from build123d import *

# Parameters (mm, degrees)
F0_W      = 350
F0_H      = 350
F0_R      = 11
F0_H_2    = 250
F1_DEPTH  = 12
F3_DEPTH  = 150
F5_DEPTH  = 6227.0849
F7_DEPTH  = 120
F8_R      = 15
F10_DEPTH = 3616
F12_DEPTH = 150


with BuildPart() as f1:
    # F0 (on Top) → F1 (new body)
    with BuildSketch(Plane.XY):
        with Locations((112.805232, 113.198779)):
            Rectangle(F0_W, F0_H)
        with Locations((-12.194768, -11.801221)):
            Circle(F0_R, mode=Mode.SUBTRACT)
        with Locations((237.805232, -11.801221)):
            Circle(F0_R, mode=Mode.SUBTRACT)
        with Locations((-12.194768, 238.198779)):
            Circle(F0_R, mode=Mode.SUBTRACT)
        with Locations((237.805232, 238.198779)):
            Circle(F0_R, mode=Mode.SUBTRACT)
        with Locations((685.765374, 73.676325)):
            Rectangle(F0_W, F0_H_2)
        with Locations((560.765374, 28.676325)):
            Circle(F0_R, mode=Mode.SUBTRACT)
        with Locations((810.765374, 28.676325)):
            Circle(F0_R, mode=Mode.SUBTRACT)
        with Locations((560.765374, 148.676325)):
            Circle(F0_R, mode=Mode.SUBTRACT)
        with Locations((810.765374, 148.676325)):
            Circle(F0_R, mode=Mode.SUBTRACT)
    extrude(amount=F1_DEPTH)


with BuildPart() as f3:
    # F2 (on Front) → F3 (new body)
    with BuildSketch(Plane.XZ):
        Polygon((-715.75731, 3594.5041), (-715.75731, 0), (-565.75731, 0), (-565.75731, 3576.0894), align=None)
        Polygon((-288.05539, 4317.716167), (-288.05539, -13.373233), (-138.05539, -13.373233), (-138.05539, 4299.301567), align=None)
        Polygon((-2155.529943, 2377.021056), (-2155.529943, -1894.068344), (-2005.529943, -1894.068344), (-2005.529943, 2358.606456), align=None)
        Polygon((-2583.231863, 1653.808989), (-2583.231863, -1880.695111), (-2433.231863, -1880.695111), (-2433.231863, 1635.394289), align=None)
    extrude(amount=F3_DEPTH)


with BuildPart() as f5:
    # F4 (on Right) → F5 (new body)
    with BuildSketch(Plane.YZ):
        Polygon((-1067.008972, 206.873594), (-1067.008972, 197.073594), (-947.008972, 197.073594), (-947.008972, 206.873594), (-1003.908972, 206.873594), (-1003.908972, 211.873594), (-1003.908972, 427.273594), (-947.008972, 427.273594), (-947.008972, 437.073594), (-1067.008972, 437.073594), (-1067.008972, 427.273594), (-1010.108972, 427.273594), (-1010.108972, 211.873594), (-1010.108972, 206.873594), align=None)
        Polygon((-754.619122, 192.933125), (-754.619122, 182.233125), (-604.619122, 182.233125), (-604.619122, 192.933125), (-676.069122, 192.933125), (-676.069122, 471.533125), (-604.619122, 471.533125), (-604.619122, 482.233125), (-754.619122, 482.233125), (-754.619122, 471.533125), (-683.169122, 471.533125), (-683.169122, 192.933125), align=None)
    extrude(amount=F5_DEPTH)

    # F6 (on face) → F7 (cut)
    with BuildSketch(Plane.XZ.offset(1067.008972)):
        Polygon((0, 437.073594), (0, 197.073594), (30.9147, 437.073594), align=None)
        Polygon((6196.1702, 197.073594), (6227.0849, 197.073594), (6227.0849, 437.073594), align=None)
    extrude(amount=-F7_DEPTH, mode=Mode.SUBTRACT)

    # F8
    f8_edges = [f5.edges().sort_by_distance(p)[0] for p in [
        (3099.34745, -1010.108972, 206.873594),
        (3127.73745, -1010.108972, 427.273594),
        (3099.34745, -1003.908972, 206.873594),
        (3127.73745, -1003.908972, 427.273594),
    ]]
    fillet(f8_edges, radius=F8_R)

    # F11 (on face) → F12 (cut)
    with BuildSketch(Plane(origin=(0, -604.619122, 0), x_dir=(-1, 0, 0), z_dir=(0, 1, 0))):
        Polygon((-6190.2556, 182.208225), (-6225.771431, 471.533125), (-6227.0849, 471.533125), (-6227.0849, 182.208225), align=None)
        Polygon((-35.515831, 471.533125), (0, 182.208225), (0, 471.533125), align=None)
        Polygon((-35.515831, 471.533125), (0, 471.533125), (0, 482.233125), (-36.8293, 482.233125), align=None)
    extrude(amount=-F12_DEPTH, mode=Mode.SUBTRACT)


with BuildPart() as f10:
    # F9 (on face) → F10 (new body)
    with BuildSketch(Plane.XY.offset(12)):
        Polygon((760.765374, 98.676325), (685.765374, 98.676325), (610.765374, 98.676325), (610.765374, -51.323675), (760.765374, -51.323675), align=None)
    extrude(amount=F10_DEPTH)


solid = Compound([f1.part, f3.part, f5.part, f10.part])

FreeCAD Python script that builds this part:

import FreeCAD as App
import Part
import Sketcher

V = App.Vector


def edges_at(feature, points):
    """Names of the edges that pass closest to the given points."""
    edges = feature.Shape.Edges
    near = lambda p: min(range(len(edges)), key=lambda i: edges[i].distToShape(Part.Vertex(*p))[0])
    return sorted({f"Edge{near(p) + 1}" for p in points})

doc = App.newDocument("Part")
params = doc.addObject("Spreadsheet::Sheet", "Params")
for row, (alias, value) in enumerate([
    ("sketch1_diameter", "22 mm"),
    ("sketch1_width", "350 mm"),
    ("sketch1_height", "250 mm"),
    ("pad1_length", "12 mm"),
    ("sketch2_width", "150 mm"),
    ("pad2_length", "150 mm"),
    ("sketch3_width", "120 mm"),
    ("sketch3_width2", "150 mm"),
    ("sketch3_width3", "56.9 mm"),
    ("sketch3_height", "9.8 mm"),
    ("sketch3_height2", "220.4 mm"),
    ("pad3_length", "6227.0849 mm"),
    ("sketch4_height", "240 mm"),
    ("pocket1_length", "120 mm"),
    ("fillet_radius", "15 mm"),
    ("pocket2_length", "150 mm"),
    ("sketch6_width", "150 mm"),
    ("pad4_length", "3616 mm"),
], start=1):
    params.set(f"A{row}", alias)
    params.set(f"B{row}", "=" + value)
    params.setAlias(f"B{row}", alias)

body = doc.addObject("PartDesign::Body", "Body")
body.AllowCompound = True

# Sketch on XY plane
sketch1 = body.newObject("Sketcher::SketchObject", "Sketch")
sketch1.AttachmentSupport = (doc.getObject("XY_Plane"), [""])
sketch1.MapMode = "FlatFace"
sketch1.addGeometry([
    Part.LineSegment(V(-62, 288, 0), V(-62, -62, 0)),  # 0
    Part.LineSegment(V(-62, -62, 0), V(288, -62, 0)),  # 1
    Part.LineSegment(V(288, -62, 0), V(288, 288, 0)),  # 2
    Part.LineSegment(V(288, 288, 0), V(-62, 288, 0)),  # 3
    Part.Circle(V(-12, -12, 0), V(0, 0, 1), 11),  # 4
    Part.Circle(V(238, -12, 0), V(0, 0, 1), 11),  # 5
    Part.Circle(V(-12, 238, 0), V(0, 0, 1), 11),  # 6
    Part.Circle(V(238, 238, 0), V(0, 0, 1), 11),  # 7
    Part.LineSegment(V(511, 199, 0), V(511, -51, 0)),  # 8
    Part.LineSegment(V(511, -51, 0), V(861, -51, 0)),  # 9
    Part.LineSegment(V(861, -51, 0), V(861, 199, 0)),  # 10
    Part.LineSegment(V(861, 199, 0), V(511, 199, 0)),  # 11
    Part.Circle(V(561, 29, 0), V(0, 0, 1), 11),  # 12
    Part.Circle(V(811, 29, 0), V(0, 0, 1), 11),  # 13
    Part.Circle(V(561, 149, 0), V(0, 0, 1), 11),  # 14
    Part.Circle(V(811, 149, 0), V(0, 0, 1), 11),  # 15
], False)
sketch1.addConstraint([
    Sketcher.Constraint("Coincident", 0, 2, 1, 1),
    Sketcher.Constraint("Coincident", 1, 2, 2, 1),
    Sketcher.Constraint("Coincident", 2, 2, 3, 1),
    Sketcher.Constraint("Coincident", 3, 2, 0, 1),
    Sketcher.Constraint("Coincident", 8, 2, 9, 1),
    Sketcher.Constraint("Coincident", 9, 2, 10, 1),
    Sketcher.Constraint("Coincident", 10, 2, 11, 1),
    Sketcher.Constraint("Coincident", 11, 2, 8, 1),
    Sketcher.Constraint("Vertical", 0),
    Sketcher.Constraint("Horizontal", 1),
    Sketcher.Constraint("Vertical", 2),
    Sketcher.Constraint("Horizontal", 3),
    Sketcher.Constraint("Vertical", 8),
    Sketcher.Constraint("Horizontal", 9),
    Sketcher.Constraint("Vertical", 10),
    Sketcher.Constraint("Horizontal", 11),
    Sketcher.Constraint("Equal", 4, 5),
    Sketcher.Constraint("Equal", 5, 6),
    Sketcher.Constraint("Equal", 6, 7),
    Sketcher.Constraint("Equal", 7, 12),
    Sketcher.Constraint("Equal", 12, 13),
    Sketcher.Constraint("Equal", 13, 14),
    Sketcher.Constraint("Equal", 14, 15),
    Sketcher.Constraint("Horizontal", 4, 3, 5, 3),
    Sketcher.Constraint("Horizontal", 6, 3, 7, 3),
    Sketcher.Constraint("Horizontal", 12, 3, 13, 3),
    Sketcher.Constraint("Horizontal", 14, 3, 15, 3),
    Sketcher.Constraint("Vertical", 4, 3, 6, 3),
    Sketcher.Constraint("Vertical", 5, 3, 7, 3),
    Sketcher.Constraint("Vertical", 12, 3, 14, 3),
    Sketcher.Constraint("Vertical", 13, 3, 15, 3),
    Sketcher.Constraint("Equal", 3, 9),
    Sketcher.Constraint("Equal", 11, 0),
    Sketcher.Constraint("Diameter", 4, 22.0),
    Sketcher.Constraint("DistanceX", 1, 1, 1, 2, 350.0),
    Sketcher.Constraint("DistanceY", 8, 2, 8, 1, 250.0),
    Sketcher.Constraint("DistanceX", 4, 3, 5, 3, 250.0),
    Sketcher.Constraint("DistanceY", 4, 3, 6, 3, 250.0),
    Sketcher.Constraint("DistanceX", 12, 3, 13, 3, 250.0),
    Sketcher.Constraint("DistanceY", 12, 3, 14, 3, 120.0),
    Sketcher.Constraint("DistanceX", 0, 2, 4, 3, 50.0),
    Sketcher.Constraint("DistanceY", 0, 2, 4, 3, 50.0),
    Sketcher.Constraint("DistanceX", 8, 2, 12, 3, 50.0),
    Sketcher.Constraint("DistanceY", 8, 2, 12, 3, 80.0),
    Sketcher.Constraint("DistanceY", 4, 3, -1, 1, 11.801221),
    Sketcher.Constraint("DistanceX", -1, 1, 5, 3, 237.805232),
    Sketcher.Constraint("DistanceX", 5, 3, 12, 3, 322.960142),
    Sketcher.Constraint("DistanceY", -1, 1, 12, 3, 28.676325),
])
sketch1.setExpression("Constraints[33]", "Params.sketch1_diameter")
sketch1.setExpression("Constraints[34]", "Params.sketch1_width")
sketch1.setExpression("Constraints[35]", "Params.sketch1_height")
pad1 = body.newObject("PartDesign::Pad", "Pad")
pad1.Profile = sketch1
pad1.setExpression("Length", "Params.pad1_length")
body2 = doc.addObject("PartDesign::Body", "Body001")
body2.AllowCompound = True

# Sketch on XZ plane
sketch2 = body2.newObject("Sketcher::SketchObject", "Sketch001")
sketch2.AttachmentSupport = (doc.getObject("XZ_Plane001"), [""])
sketch2.MapMode = "FlatFace"
sketch2.addGeometry([
    Part.LineSegment(V(-715.75731, 3594.5041, 0), V(-715.75731, 0, 0)),  # 0
    Part.LineSegment(V(-715.75731, 0, 0), V(-565.75731, 0, 0)),  # 1
    Part.LineSegment(V(-565.75731, 0, 0), V(-565.75731, 3576.0894, 0)),  # 2
    Part.LineSegment(V(-565.75731, 3576.0894, 0), V(-715.75731, 3594.5041, 0)),  # 3
    Part.LineSegment(V(-288.05539, 4317.716167, 0), V(-288.05539, -13.373233, 0)),  # 4
    Part.LineSegment(V(-288.05539, -13.373233, 0), V(-138.05539, -13.373233, 0)),  # 5
    Part.LineSegment(V(-138.05539, -13.373233, 0), V(-138.05539, 4299.301567, 0)),  # 6
    Part.LineSegment(V(-138.05539, 4299.301567, 0), V(-288.05539, 4317.716167, 0)),  # 7
    Part.LineSegment(V(-2155.529943, 2377.021056, 0), V(-2155.529943, -1894.068344, 0)),  # 8
    Part.LineSegment(V(-2155.529943, -1894.068344, 0), V(-2005.529943, -1894.068344, 0)),  # 9
    Part.LineSegment(V(-2005.529943, -1894.068344, 0), V(-2005.529943, 2358.606456, 0)),  # 10
    Part.LineSegment(V(-2005.529943, 2358.606456, 0), V(-2155.529943, 2377.021056, 0)),  # 11
    Part.LineSegment(V(-2583.231863, 1653.808989, 0), V(-2583.231863, -1880.695111, 0)),  # 12
    Part.LineSegment(V(-2583.231863, -1880.695111, 0), V(-2433.231863, -1880.695111, 0)),  # 13
    Part.LineSegment(V(-2433.231863, -1880.695111, 0), V(-2433.231863, 1635.394289, 0)),  # 14
    Part.LineSegment(V(-2433.231863, 1635.394289, 0), V(-2583.231863, 1653.808989, 0)),  # 15
], False)
sketch2.addConstraint([
    Sketcher.Constraint("Coincident", 0, 2, 1, 1),
    Sketcher.Constraint("Coincident", 1, 2, 2, 1),
    Sketcher.Constraint("Coincident", 2, 2, 3, 1),
    Sketcher.Constraint("Coincident", 3, 2, 0, 1),
    Sketcher.Constraint("Coincident", 4, 2, 5, 1),
    Sketcher.Constraint("Coincident", 5, 2, 6, 1),
    Sketcher.Constraint("Coincident", 6, 2, 7, 1),
    Sketcher.Constraint("Coincident", 7, 2, 4, 1),
    Sketcher.Constraint("Coincident", 8, 2, 9, 1),
    Sketcher.Constraint("Coincident", 9, 2, 10, 1),
    Sketcher.Constraint("Coincident", 10, 2, 11, 1),
    Sketcher.Constraint("Coincident", 11, 2, 8, 1),
    Sketcher.Constraint("Coincident", 12, 2, 13, 1),
    Sketcher.Constraint("Coincident", 13, 2, 14, 1),
    Sketcher.Constraint("Coincident", 14, 2, 15, 1),
    Sketcher.Constraint("Coincident", 15, 2, 12, 1),
    Sketcher.Constraint("Vertical", 0),
    Sketcher.Constraint("Horizontal", 1),
    Sketcher.Constraint("Vertical", 2),
    Sketcher.Constraint("Vertical", 4),
    Sketcher.Constraint("Horizontal", 5),
    Sketcher.Constraint("Vertical", 6),
    Sketcher.Constraint("Vertical", 8),
    Sketcher.Constraint("Horizontal", 9),
    Sketcher.Constraint("Vertical", 10),
    Sketcher.Constraint("Vertical", 12),
    Sketcher.Constraint("Horizontal", 13),
    Sketcher.Constraint("Vertical", 14),
    Sketcher.Constraint("PointOnObject", 0, 2, -1),
    Sketcher.Constraint("Parallel", 3, 7),
    Sketcher.Constraint("Parallel", 7, 11),
    Sketcher.Constraint("Parallel", 11, 15),
    Sketcher.Constraint("Equal", 1, 5),
    Sketcher.Constraint("Equal", 5, 9),
    Sketcher.Constraint("Equal", 9, 13),
    Sketcher.Constraint("DistanceX", 1, 1, 1, 2, 150.0),
    Sketcher.Constraint("DistanceY", 0, 2, 0, 1, 3594.5041),
    Sketcher.Constraint("DistanceY", 2, 1, 2, 2, 3576.0894),
    Sketcher.Constraint("DistanceY", 4, 2, 4, 1, 4331.0894),
    Sketcher.Constraint("DistanceY", 8, 2, 8, 1, 4271.0894),
    Sketcher.Constraint("DistanceY", 12, 2, 12, 1, 3534.5041),
    Sketcher.Constraint("DistanceX", 0, 2, -1, 1, 715.75731),
    Sketcher.Constraint("DistanceX", 4, 2, -1, 1, 288.05539),
    Sketcher.Constraint("DistanceY", 12, 2, -1, 1, 1880.695111),
    Sketcher.Constraint("DistanceY", 8, 2, 4, 2, 1880.695111),
    Sketcher.Constraint("DistanceX", 12, 2, 8, 2, 427.70192),
    Sketcher.Constraint("DistanceY", 12, 2, 4, 2, 1867.321878),
    Sketcher.Constraint("DistanceX", 8, 2, -1, 1, 2155.529943),
])
sketch2.setExpression("Constraints[35]", "Params.sketch2_width")
pad2 = body2.newObject("PartDesign::Pad", "Pad001")
pad2.Profile = sketch2
pad2.setExpression("Length", "Params.pad2_length")
body3 = doc.addObject("PartDesign::Body", "Body002")
body3.AllowCompound = True

# Sketch on YZ plane
sketch3 = body3.newObject("Sketcher::SketchObject", "Sketch002")
sketch3.AttachmentSupport = (doc.getObject("YZ_Plane002"), [""])
sketch3.MapMode = "FlatFace"
sketch3.addGeometry([
    Part.LineSegment(V(-1067, 207, 0), V(-1067, 197, 0)),  # 0
    Part.LineSegment(V(-1067, 197, 0), V(-947, 197, 0)),  # 1
    Part.LineSegment(V(-947, 197, 0), V(-947, 207, 0)),  # 2
    Part.LineSegment(V(-947, 207, 0), V(-1004, 207, 0)),  # 3
    Part.LineSegment(V(-1004, 207, 0), V(-1004, 427, 0)),  # 4
    Part.LineSegment(V(-1004, 427, 0), V(-947, 427, 0)),  # 5
    Part.LineSegment(V(-947, 427, 0), V(-947, 437, 0)),  # 6
    Part.LineSegment(V(-947, 437, 0), V(-1067, 437, 0)),  # 7
    Part.LineSegment(V(-1067, 437, 0), V(-1067, 427, 0)),  # 8
    Part.LineSegment(V(-1067, 427, 0), V(-1010, 427, 0)),  # 9
    Part.LineSegment(V(-1010, 427, 0), V(-1010, 207, 0)),  # 10
    Part.LineSegment(V(-1010, 207, 0), V(-1067, 207, 0)),  # 11
    Part.LineSegment(V(-755, 193, 0), V(-755, 182, 0)),  # 12
    Part.LineSegment(V(-755, 182, 0), V(-605, 182, 0)),  # 13
    Part.LineSegment(V(-605, 182, 0), V(-605, 193, 0)),  # 14
    Part.LineSegment(V(-605, 193, 0), V(-676, 193, 0)),  # 15
    Part.LineSegment(V(-676, 193, 0), V(-676, 472, 0)),  # 16
    Part.LineSegment(V(-676, 472, 0), V(-605, 472, 0)),  # 17
    Part.LineSegment(V(-605, 472, 0), V(-605, 482, 0)),  # 18
    Part.LineSegment(V(-605, 482, 0), V(-755, 482, 0)),  # 19
    Part.LineSegment(V(-755, 482, 0), V(-755, 472, 0)),  # 20
    Part.LineSegment(V(-755, 472, 0), V(-683, 472, 0)),  # 21
    Part.LineSegment(V(-683, 472, 0), V(-683, 193, 0)),  # 22
    Part.LineSegment(V(-683, 193, 0), V(-755, 193, 0)),  # 23
], False)
sketch3.addConstraint([
    Sketcher.Constraint("Coincident", 0, 2, 1, 1),
    Sketcher.Constraint("Coincident", 1, 2, 2, 1),
    Sketcher.Constraint("Coincident", 2, 2, 3, 1),
    Sketcher.Constraint("Coincident", 3, 2, 4, 1),
    Sketcher.Constraint("Coincident", 4, 2, 5, 1),
    Sketcher.Constraint("Coincident", 5, 2, 6, 1),
    Sketcher.Constraint("Coincident", 6, 2, 7, 1),
    Sketcher.Constraint("Coincident", 7, 2, 8, 1),
    Sketcher.Constraint("Coincident", 8, 2, 9, 1),
    Sketcher.Constraint("Coincident", 9, 2, 10, 1),
    Sketcher.Constraint("Coincident", 10, 2, 11, 1),
    Sketcher.Constraint("Coincident", 11, 2, 0, 1),
    Sketcher.Constraint("Coincident", 12, 2, 13, 1),
    Sketcher.Constraint("Coincident", 13, 2, 14, 1),
    Sketcher.Constraint("Coincident", 14, 2, 15, 1),
    Sketcher.Constraint("Coincident", 15, 2, 16, 1),
    Sketcher.Constraint("Coincident", 16, 2, 17, 1),
    Sketcher.Constraint("Coincident", 17, 2, 18, 1),
    Sketcher.Constraint("Coincident", 18, 2, 19, 1),
    Sketcher.Constraint("Coincident", 19, 2, 20, 1),
    Sketcher.Constraint("Coincident", 20, 2, 21, 1),
    Sketcher.Constraint("Coincident", 21, 2, 22, 1),
    Sketcher.Constraint("Coincident", 22, 2, 23, 1),
    Sketcher.Constraint("Coincident", 23, 2, 12, 1),
    Sketcher.Constraint("Vertical", 0),
    Sketcher.Constraint("Horizontal", 1),
    Sketcher.Constraint("Vertical", 2),
    Sketcher.Constraint("Horizontal", 3),
    Sketcher.Constraint("Vertical", 4),
    Sketcher.Constraint("Horizontal", 5),
    Sketcher.Constraint("Vertical", 6),
    Sketcher.Constraint("Horizontal", 7),
    Sketcher.Constraint("Vertical", 8),
    Sketcher.Constraint("Horizontal", 9),
    Sketcher.Constraint("Vertical", 10),
    Sketcher.Constraint("Horizontal", 11),
    Sketcher.Constraint("Vertical", 12),
    Sketcher.Constraint("Horizontal", 13),
    Sketcher.Constraint("Vertical", 14),
    Sketcher.Constraint("Horizontal", 15),
    Sketcher.Constraint("Vertical", 16),
    Sketcher.Constraint("Horizontal", 17),
    Sketcher.Constraint("Vertical", 18),
    Sketcher.Constraint("Horizontal", 19),
    Sketcher.Constraint("Vertical", 20),
    Sketcher.Constraint("Horizontal", 21),
    Sketcher.Constraint("Vertical", 22),
    Sketcher.Constraint("Horizontal", 23),
    Sketcher.Constraint("Horizontal", 5, 2, 8, 2),
    Sketcher.Constraint("Horizontal", 3, 2, 10, 2),
    Sketcher.Constraint("Horizontal", 17, 2, 20, 2),
    Sketcher.Constraint("Horizontal", 15, 2, 22, 2),
    Sketcher.Constraint("Vertical", 2, 2, 5, 2),
    Sketcher.Constraint("Vertical", 0, 2, 7, 2),
    Sketcher.Constraint("Vertical", 14, 2, 17, 2),
    Sketcher.Constraint("Vertical", 12, 2, 19, 2),
    Sketcher.Constraint("Equal", 5, 9),
    Sketcher.Constraint("Equal", 17, 21),
    Sketcher.Constraint("Equal", 2, 6),
    Sketcher.Constraint("Equal", 14, 18),
    Sketcher.Constraint("DistanceX", 1, 1, 1, 2, 120.0),
    Sketcher.Constraint("DistanceX", 13, 1, 13, 2, 150.0),
    Sketcher.Constraint("DistanceX", 3, 2, 3, 1, 56.9),
    Sketcher.Constraint("DistanceY", 0, 2, 0, 1, 9.8),
    Sketcher.Constraint("DistanceY", 4, 1, 4, 2, 220.4),
    Sketcher.Constraint("DistanceY", 12, 2, 12, 1, 10.7),
    Sketcher.Constraint("DistanceY", 16, 1, 16, 2, 278.6),
    Sketcher.Constraint("DistanceX", 15, 2, 15, 1, 71.45),
    Sketcher.Constraint("DistanceX", 0, 2, -1, 1, 1067.008972),
    Sketcher.Constraint("DistanceX", 12, 2, -1, 1, 754.619122),
    Sketcher.Constraint("DistanceY", 12, 2, 1, 2, 14.840469),
    Sketcher.Constraint("DistanceY", -1, 1, 0, 2, 197.073594),
])
sketch3.setExpression("Constraints[60]", "Params.sketch3_width")
sketch3.setExpression("Constraints[61]", "Params.sketch3_width2")
sketch3.setExpression("Constraints[62]", "Params.sketch3_width3")
sketch3.setExpression("Constraints[63]", "Params.sketch3_height")
sketch3.setExpression("Constraints[64]", "Params.sketch3_height2")
pad3 = body3.newObject("PartDesign::Pad", "Pad002")
pad3.Profile = sketch3
pad3.setExpression("Length", "Params.pad3_length")

# Sketch on XZ plane
sketch4 = body3.newObject("Sketcher::SketchObject", "Sketch003")
sketch4.AttachmentSupport = (doc.getObject("XZ_Plane002"), [""])
sketch4.MapMode = "FlatFace"
sketch4.AttachmentOffset = App.Placement(V(0, 0, 1067.008972), App.Rotation())
sketch4.addGeometry([
    Part.LineSegment(V(0, 437, 0), V(0, 197, 0)),  # 0
    Part.LineSegment(V(0, 197, 0), V(31, 437, 0)),  # 1
    Part.LineSegment(V(31, 437, 0), V(0, 437, 0)),  # 2
    Part.LineSegment(V(6196, 197, 0), V(6227, 197, 0)),  # 3
    Part.LineSegment(V(6227, 197, 0), V(6227, 437, 0)),  # 4
    Part.LineSegment(V(6227, 437, 0), V(6196, 197, 0)),  # 5
], False)
sketch4.addConstraint([
    Sketcher.Constraint("Coincident", 0, 2, 1, 1),
    Sketcher.Constraint("Coincident", 1, 2, 2, 1),
    Sketcher.Constraint("Coincident", 2, 2, 0, 1),
    Sketcher.Constraint("Coincident", 3, 2, 4, 1),
    Sketcher.Constraint("Coincident", 4, 2, 5, 1),
    Sketcher.Constraint("Coincident", 5, 2, 3, 1),
    Sketcher.Constraint("Vertical", 0),
    Sketcher.Constraint("Horizontal", 2),
    Sketcher.Constraint("Horizontal", 3),
    Sketcher.Constraint("Vertical", 4),
    Sketcher.Constraint("PointOnObject", 0, 2, -2),
    Sketcher.Constraint("Parallel", 1, 5),
    Sketcher.Constraint("Horizontal", 0, 2, 3, 2),
    Sketcher.Constraint("Horizontal", 2, 2, 4, 2),
    Sketcher.Constraint("DistanceY", 0, 2, 0, 1, 240.0),
    Sketcher.Constraint("DistanceX", 2, 2, 2, 1, 30.9147),
    Sketcher.Constraint("DistanceX", -1, 1, 3, 2, 6227.0849),
    Sketcher.Constraint("DistanceY", -1, 1, 0, 2, 197.073594),
])
sketch4.setExpression("Constraints[14]", "Params.sketch4_height")
pocket1 = body3.newObject("PartDesign::Pocket", "Pocket")
pocket1.Profile = sketch4
pocket1.setExpression("Length", "Params.pocket1_length")
doc.recompute()

fillet = body3.newObject("PartDesign::Fillet", "Fillet")
fillet.Base = (pocket1, edges_at(pocket1, [
    (3099.347, -1010.109, 206.874),
    (3127.737, -1010.109, 427.274),
    (3099.347, -1003.909, 206.874),
    (3127.737, -1003.909, 427.274),
]))
fillet.setExpression("Radius", "Params.fillet_radius")

# Sketch on XZ plane
sketch5 = body3.newObject("Sketcher::SketchObject", "Sketch004")
sketch5.AttachmentSupport = (doc.getObject("XZ_Plane002"), [""])
sketch5.MapMode = "FlatFace"
sketch5.AttachmentOffset = App.Placement(V(0, 0, 604.619122), App.Rotation())
sketch5.addGeometry([
    Part.LineSegment(V(6190.3, 182.2, 0), V(6225.8, 471.5, 0)),  # 0
    Part.LineSegment(V(6225.8, 471.5, 0), V(6227.1, 471.5, 0)),  # 1
    Part.LineSegment(V(6227.1, 471.5, 0), V(6227.1, 182.2, 0)),  # 2
    Part.LineSegment(V(6227.1, 182.2, 0), V(6190.3, 182.2, 0)),  # 3
    Part.LineSegment(V(35.5, 471.5, 0), V(0, 182.2, 0)),  # 4
    Part.LineSegment(V(0, 182.2, 0), V(0, 482.2, 0)),  # 5
    Part.LineSegment(V(0, 482.2, 0), V(36.8, 482.2, 0)),  # 6
    Part.LineSegment(V(36.8, 482.2, 0), V(35.5, 471.5, 0)),  # 7
], False)
sketch5.addConstraint([
    Sketcher.Constraint("Coincident", 0, 2, 1, 1),
    Sketcher.Constraint("Coincident", 1, 2, 2, 1),
    Sketcher.Constraint("Coincident", 2, 2, 3, 1),
    Sketcher.Constraint("Coincident", 3, 2, 0, 1),
    Sketcher.Constraint("Coincident", 4, 2, 5, 1),
    Sketcher.Constraint("Coincident", 5, 2, 6, 1),
    Sketcher.Constraint("Coincident", 6, 2, 7, 1),
    Sketcher.Constraint("Coincident", 7, 2, 4, 1),
    Sketcher.Constraint("Horizontal", 1),
    Sketcher.Constraint("Vertical", 2),
    Sketcher.Constraint("Horizontal", 3),
    Sketcher.Constraint("Vertical", 5),
    Sketcher.Constraint("Horizontal", 6),
    Sketcher.Constraint("PointOnObject", 4, 2, -2),
    Sketcher.Constraint("Parallel", 0, 4),
    Sketcher.Constraint("Parallel", 4, 7),
    Sketcher.Constraint("Horizontal", 3, 2, 4, 2),
    Sketcher.Constraint("Horizontal", 1, 2, 7, 2),
    Sketcher.Constraint("Equal", 3, 6),
    Sketcher.Constraint("DistanceY", 0, 2, 5, 2, 10.7),
    Sketcher.Constraint("DistanceX", 3, 2, 3, 1, 36.8293),
    Sketcher.Constraint("DistanceY", 2, 2, 2, 1, 289.3249),
    Sketcher.Constraint("DistanceX", -1, 1, 1, 2, 6227.0849),
    Sketcher.Constraint("DistanceY", -1, 1, 0, 2, 471.533125),
])
pocket2 = body3.newObject("PartDesign::Pocket", "Pocket001")
pocket2.Profile = sketch5
pocket2.setExpression("Length", "Params.pocket2_length")
pocket2.Reversed = True
body4 = doc.addObject("PartDesign::Body", "Body003")

# Sketch on XY plane
sketch6 = body4.newObject("Sketcher::SketchObject", "Sketch005")
sketch6.AttachmentSupport = (doc.getObject("XY_Plane003"), [""])
sketch6.MapMode = "FlatFace"
sketch6.AttachmentOffset = App.Placement(V(0, 0, 12), App.Rotation())
sketch6.addGeometry([
    Part.LineSegment(V(761, 99, 0), V(611, 99, 0)),
    Part.LineSegment(V(611, 99, 0), V(611, -51, 0)),
    Part.LineSegment(V(611, -51, 0), V(761, -51, 0)),
    Part.LineSegment(V(761, -51, 0), V(761, 99, 0)),
], False)
sketch6.addConstraint([
    Sketcher.Constraint("Coincident", 0, 2, 1, 1),
    Sketcher.Constraint("Coincident", 1, 2, 2, 1),
    Sketcher.Constraint("Coincident", 2, 2, 3, 1),
    Sketcher.Constraint("Coincident", 3, 2, 0, 1),
    Sketcher.Constraint("Horizontal", 0),
    Sketcher.Constraint("Vertical", 1),
    Sketcher.Constraint("Horizontal", 2),
    Sketcher.Constraint("Vertical", 3),
    Sketcher.Constraint("Equal", 2, 1),
    Sketcher.Constraint("DistanceX", 0, 2, 0, 1, 150.0),
    Sketcher.Constraint("DistanceX", -1, 1, 0, 2, 610.765374),
    Sketcher.Constraint("DistanceY", -1, 1, 0, 2, 98.676325),
])
sketch6.setExpression("Constraints[9]", "Params.sketch6_width")
pad4 = body4.newObject("PartDesign::Pad", "Pad003")
pad4.Profile = sketch6
pad4.setExpression("Length", "Params.pad4_length")

doc.recompute()
